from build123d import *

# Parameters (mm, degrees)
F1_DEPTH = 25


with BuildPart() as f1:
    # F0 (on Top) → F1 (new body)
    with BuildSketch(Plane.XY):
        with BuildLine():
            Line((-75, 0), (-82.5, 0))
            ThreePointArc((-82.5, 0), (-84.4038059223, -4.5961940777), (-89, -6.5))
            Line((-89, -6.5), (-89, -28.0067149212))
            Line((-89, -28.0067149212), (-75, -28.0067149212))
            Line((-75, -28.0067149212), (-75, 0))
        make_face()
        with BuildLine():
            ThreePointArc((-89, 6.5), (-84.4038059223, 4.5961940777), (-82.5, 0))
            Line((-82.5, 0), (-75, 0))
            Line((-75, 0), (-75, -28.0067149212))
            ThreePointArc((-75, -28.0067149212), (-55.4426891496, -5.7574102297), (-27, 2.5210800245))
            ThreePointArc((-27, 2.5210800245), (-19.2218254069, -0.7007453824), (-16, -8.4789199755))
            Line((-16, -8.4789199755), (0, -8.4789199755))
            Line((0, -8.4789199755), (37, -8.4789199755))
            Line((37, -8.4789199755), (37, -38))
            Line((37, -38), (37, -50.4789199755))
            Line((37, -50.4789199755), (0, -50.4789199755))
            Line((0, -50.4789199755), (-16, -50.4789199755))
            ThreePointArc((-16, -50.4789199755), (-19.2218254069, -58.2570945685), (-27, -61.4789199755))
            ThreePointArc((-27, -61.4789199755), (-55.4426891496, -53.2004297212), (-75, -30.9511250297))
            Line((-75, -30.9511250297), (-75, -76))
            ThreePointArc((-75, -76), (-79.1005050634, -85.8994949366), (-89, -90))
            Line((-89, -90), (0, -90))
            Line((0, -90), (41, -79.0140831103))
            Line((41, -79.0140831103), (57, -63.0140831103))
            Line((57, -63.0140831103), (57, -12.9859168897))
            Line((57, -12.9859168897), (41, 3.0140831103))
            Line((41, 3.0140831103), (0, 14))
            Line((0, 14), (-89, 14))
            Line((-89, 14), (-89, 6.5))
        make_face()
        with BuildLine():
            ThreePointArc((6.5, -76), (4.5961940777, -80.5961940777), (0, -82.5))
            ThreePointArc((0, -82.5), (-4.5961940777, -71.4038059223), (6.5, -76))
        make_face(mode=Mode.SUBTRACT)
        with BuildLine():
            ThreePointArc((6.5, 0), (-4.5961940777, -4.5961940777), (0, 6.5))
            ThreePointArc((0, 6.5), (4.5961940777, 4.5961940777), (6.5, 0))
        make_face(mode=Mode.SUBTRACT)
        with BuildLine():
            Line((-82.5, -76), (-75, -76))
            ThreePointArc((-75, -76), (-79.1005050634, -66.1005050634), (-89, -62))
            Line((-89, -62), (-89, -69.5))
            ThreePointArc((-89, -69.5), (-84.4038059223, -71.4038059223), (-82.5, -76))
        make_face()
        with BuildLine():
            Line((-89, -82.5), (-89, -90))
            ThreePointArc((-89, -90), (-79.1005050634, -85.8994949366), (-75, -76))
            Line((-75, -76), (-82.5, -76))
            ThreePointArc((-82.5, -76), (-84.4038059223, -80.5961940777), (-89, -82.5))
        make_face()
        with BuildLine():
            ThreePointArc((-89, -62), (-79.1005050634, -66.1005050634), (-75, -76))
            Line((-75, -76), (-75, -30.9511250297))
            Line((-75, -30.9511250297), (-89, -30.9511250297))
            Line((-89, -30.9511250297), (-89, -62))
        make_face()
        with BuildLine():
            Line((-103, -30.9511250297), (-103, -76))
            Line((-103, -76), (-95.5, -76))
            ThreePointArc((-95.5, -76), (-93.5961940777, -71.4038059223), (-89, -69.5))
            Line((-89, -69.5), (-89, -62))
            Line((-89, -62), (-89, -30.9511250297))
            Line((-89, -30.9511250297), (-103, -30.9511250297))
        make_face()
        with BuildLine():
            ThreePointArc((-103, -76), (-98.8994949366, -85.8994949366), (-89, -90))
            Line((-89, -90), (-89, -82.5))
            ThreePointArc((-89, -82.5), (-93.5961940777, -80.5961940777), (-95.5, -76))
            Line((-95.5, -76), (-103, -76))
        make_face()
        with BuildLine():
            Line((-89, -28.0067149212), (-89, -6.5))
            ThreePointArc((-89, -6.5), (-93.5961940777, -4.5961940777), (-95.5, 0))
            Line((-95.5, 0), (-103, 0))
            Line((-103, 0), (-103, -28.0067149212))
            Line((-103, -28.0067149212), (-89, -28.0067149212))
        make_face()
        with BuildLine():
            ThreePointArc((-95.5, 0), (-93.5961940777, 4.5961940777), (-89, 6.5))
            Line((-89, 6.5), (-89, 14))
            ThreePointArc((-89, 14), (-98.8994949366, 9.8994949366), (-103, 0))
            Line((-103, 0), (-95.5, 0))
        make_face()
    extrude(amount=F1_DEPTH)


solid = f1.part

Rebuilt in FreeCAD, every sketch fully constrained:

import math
import FreeCAD as App
import Part
import Sketcher

V = App.Vector
Q = App.Units.Quantity

doc = App.newDocument("Part")
body = doc.addObject("PartDesign::Body", "Body")

# Sketch on XY plane
sketch1 = body.newObject("Sketcher::SketchObject", "Sketch")
sketch1.AttachmentSupport = (doc.getObject("XY_Plane"), [""])
sketch1.MapMode = "FlatFace"
sketch1.addGeometry(Part.LineSegment(V(-103, 0, 0), V(-103, -28.006715, 0)), False)
sketch1.addGeometry(Part.LineSegment(V(-103, -28.006715, 0), V(-75, -28.006715, 0)), False)
sketch1.addGeometry(Part.ArcOfCircle(Part.Circle(V(-27, -50.47892, 0), V(0, 0, 1), 53), math.radians(90), math.radians(154.912372)), False)
sketch1.addGeometry(Part.ArcOfCircle(Part.Circle(V(-27, -8.47892, 0), V(0, 0, 1), 11), math.radians(0), math.radians(90)), False)
sketch1.addGeometry(Part.LineSegment(V(-16, -8.47892, 0), V(37, -8.47892, 0)), False)
sketch1.addGeometry(Part.LineSegment(V(37, -8.47892, 0), V(37, -50.47892, 0)), False)
sketch1.addGeometry(Part.LineSegment(V(37, -50.47892, 0), V(-16, -50.47892, 0)), False)
sketch1.addGeometry(Part.ArcOfCircle(Part.Circle(V(-27, -50.47892, 0), V(0, 0, 1), 11), math.radians(-90), math.radians(0)), False)
sketch1.addGeometry(Part.ArcOfCircle(Part.Circle(V(-27, -8.47892, 0), V(0, 0, 1), 53), math.radians(-154.912372), math.radians(-90)), False)
sketch1.addGeometry(Part.LineSegment(V(-75, -30.951125, 0), V(-103, -30.951125, 0)), False)
sketch1.addGeometry(Part.LineSegment(V(-103, -30.951125, 0), V(-103, -76, 0)), False)
sketch1.addGeometry(Part.ArcOfCircle(Part.Circle(V(-89, -76, 0), V(0, 0, 1), 14), math.radians(180), math.radians(270)), False)
sketch1.addGeometry(Part.LineSegment(V(-89, -90, 0), V(0, -90, 0)), False)
sketch1.addGeometry(Part.LineSegment(V(0, -90, 0), V(41, -79.014083, 0)), False)
sketch1.addGeometry(Part.LineSegment(V(41, -79.014083, 0), V(57, -63.014083, 0)), False)
sketch1.addGeometry(Part.LineSegment(V(57, -63.014083, 0), V(57, -12.985917, 0)), False)
sketch1.addGeometry(Part.LineSegment(V(57, -12.985917, 0), V(41, 3.014083, 0)), False)
sketch1.addGeometry(Part.LineSegment(V(41, 3.014083, 0), V(0, 14, 0)), False)
sketch1.addGeometry(Part.LineSegment(V(0, 14, 0), V(-89, 14, 0)), False)
sketch1.addGeometry(Part.ArcOfCircle(Part.Circle(V(-89, 0, 0), V(0, 0, 1), 14), math.radians(90), math.radians(180)), False)
sketch1.addGeometry(Part.ArcOfCircle(Part.Circle(V(-89, 0, 0), V(0, 0, 1), 6.5), math.radians(-90), math.radians(0)), False)
sketch1.addGeometry(Part.ArcOfCircle(Part.Circle(V(-89, 0, 0), V(0, 0, 1), 6.5), math.radians(180), math.radians(270)), False)
sketch1.addGeometry(Part.ArcOfCircle(Part.Circle(V(-89, 0, 0), V(0, 0, 1), 6.5), math.radians(90), math.radians(180)), False)
sketch1.addGeometry(Part.ArcOfCircle(Part.Circle(V(-89, 0, 0), V(0, 0, 1), 6.5), math.radians(0), math.radians(90)), False)
sketch1.addGeometry(Part.ArcOfCircle(Part.Circle(V(-89, -76, 0), V(0, 0, 1), 6.5), math.radians(90), math.radians(180)), False)
sketch1.addGeometry(Part.ArcOfCircle(Part.Circle(V(-89, -76, 0), V(0, 0, 1), 6.5), math.radians(0), math.radians(90)), False)
sketch1.addGeometry(Part.ArcOfCircle(Part.Circle(V(-89, -76, 0), V(0, 0, 1), 6.5), math.radians(-90), math.radians(0)), False)
sketch1.addGeometry(Part.ArcOfCircle(Part.Circle(V(-89, -76, 0), V(0, 0, 1), 6.5), math.radians(180), math.radians(270)), False)
sketch1.addGeometry(Part.ArcOfCircle(Part.Circle(V(0, -76, 0), V(0, 0, 1), 6.5), math.radians(0), math.radians(270)), False)
sketch1.addGeometry(Part.ArcOfCircle(Part.Circle(V(0, -76, 0), V(0, 0, 1), 6.5), math.radians(-90), math.radians(0)), False)
sketch1.addGeometry(Part.ArcOfCircle(Part.Circle(V(0, 0, 0), V(0, 0, 1), 6.5), math.radians(0), math.radians(90)), False)
sketch1.addGeometry(Part.ArcOfCircle(Part.Circle(V(0, 0, 0), V(0, 0, 1), 6.5), math.radians(90), math.radians(360)), False)
sketch1.addConstraint(Sketcher.Constraint("Coincident", 0, 2, 1, 1))
sketch1.addConstraint(Sketcher.Constraint("Coincident", 1, 2, 2, 2))
sketch1.addConstraint(Sketcher.Constraint("Tangent", 2, 1, 3, 2))
sketch1.addConstraint(Sketcher.Constraint("Coincident", 3, 1, 4, 1))
sketch1.addConstraint(Sketcher.Constraint("Coincident", 4, 2, 5, 1))
sketch1.addConstraint(Sketcher.Constraint("Coincident", 5, 2, 6, 1))
sketch1.addConstraint(Sketcher.Constraint("Coincident", 6, 2, 7, 2))
sketch1.addConstraint(Sketcher.Constraint("Tangent", 7, 1, 8, 2))
sketch1.addConstraint(Sketcher.Constraint("Coincident", 8, 1, 9, 1))
sketch1.addConstraint(Sketcher.Constraint("Coincident", 9, 2, 10, 1))
sketch1.addConstraint(Sketcher.Constraint("Tangent", 10, 2, 11, 1))
sketch1.addConstraint(Sketcher.Constraint("Tangent", 11, 2, 12, 1))
sketch1.addConstraint(Sketcher.Constraint("Coincident", 12, 2, 13, 1))
sketch1.addConstraint(Sketcher.Constraint("Coincident", 13, 2, 14, 1))
sketch1.addConstraint(Sketcher.Constraint("Coincident", 14, 2, 15, 1))
sketch1.addConstraint(Sketcher.Constraint("Coincident", 15, 2, 16, 1))
sketch1.addConstraint(Sketcher.Constraint("Coincident", 16, 2, 17, 1))
sketch1.addConstraint(Sketcher.Constraint("Coincident", 17, 2, 18, 1))
sketch1.addConstraint(Sketcher.Constraint("Tangent", 18, 2, 19, 1))
sketch1.addConstraint(Sketcher.Constraint("Tangent", 19, 2, 0, 1))
sketch1.addConstraint(Sketcher.Constraint("Tangent", 20, 1, 21, 2))
sketch1.addConstraint(Sketcher.Constraint("Tangent", 21, 1, 22, 2))
sketch1.addConstraint(Sketcher.Constraint("Tangent", 22, 1, 23, 2))
sketch1.addConstraint(Sketcher.Constraint("Tangent", 23, 1, 20, 2))
sketch1.addConstraint(Sketcher.Constraint("Tangent", 24, 1, 25, 2))
sketch1.addConstraint(Sketcher.Constraint("Tangent", 25, 1, 26, 2))
sketch1.addConstraint(Sketcher.Constraint("Tangent", 26, 1, 27, 2))
sketch1.addConstraint(Sketcher.Constraint("Tangent", 27, 1, 24, 2))
sketch1.addConstraint(Sketcher.Constraint("Tangent", 28, 1, 29, 2))
sketch1.addConstraint(Sketcher.Constraint("Coincident", 29, 1, 28, 2))
sketch1.addConstraint(Sketcher.Constraint("Tangent", 30, 1, 31, 2))
sketch1.addConstraint(Sketcher.Constraint("Coincident", 31, 1, 30, 2))
sketch1.addConstraint(Sketcher.Constraint("Vertical", 0))
sketch1.addConstraint(Sketcher.Constraint("Horizontal", 1))
sketch1.addConstraint(Sketcher.Constraint("Horizontal", 4))
sketch1.addConstraint(Sketcher.Constraint("Vertical", 5))
sketch1.addConstraint(Sketcher.Constraint("Horizontal", 6))
sketch1.addConstraint(Sketcher.Constraint("Horizontal", 9))
sketch1.addConstraint(Sketcher.Constraint("Vertical", 10))
sketch1.addConstraint(Sketcher.Constraint("Horizontal", 12))
sketch1.addConstraint(Sketcher.Constraint("Vertical", 15))
sketch1.addConstraint(Sketcher.Constraint("Horizontal", 18))
sketch1.addConstraint(Sketcher.Constraint("Coincident", 30, 3, -1, 1))
sketch1.addConstraint(Sketcher.Constraint("Coincident", 7, 3, 2, 3))
sketch1.addConstraint(Sketcher.Constraint("Coincident", 8, 3, 3, 3))
sketch1.addConstraint(Sketcher.Constraint("Coincident", 20, 3, 19, 3))
sketch1.addConstraint(Sketcher.Constraint("Coincident", 24, 3, 11, 3))
sketch1.addConstraint(Sketcher.Constraint("Equal", 3, 7))
sketch1.addConstraint(Sketcher.Constraint("Equal", 11, 19))
sketch1.addConstraint(Sketcher.Constraint("Equal", 20, 21))
sketch1.addConstraint(Sketcher.Constraint("Equal", 23, 24))
sketch1.addConstraint(Sketcher.Constraint("Equal", 24, 25))
sketch1.addConstraint(Sketcher.Constraint("Equal", 27, 28))
sketch1.addConstraint(Sketcher.Constraint("Equal", 29, 30))
sketch1.addConstraint(Sketcher.Constraint("Symmetric", 20, 1, 22, 1, -1))
sketch1.addConstraint(Sketcher.Constraint("PointOnObject", 28, 3, -2))
sketch1.addConstraint(Sketcher.Constraint("PointOnObject", 12, 2, -2))
sketch1.addConstraint(Sketcher.Constraint("PointOnObject", 17, 2, -2))
sketch1.addConstraint(Sketcher.Constraint("PointOnObject", 21, 1, -1))
sketch1.addConstraint(Sketcher.Constraint("PointOnObject", 23, 1, -1))
sketch1.addConstraint(Sketcher.Constraint("PointOnObject", 29, 1, -2))
sketch1.addConstraint(Sketcher.Constraint("PointOnObject", 30, 1, -1))
sketch1.addConstraint(Sketcher.Constraint("PointOnObject", 31, 1, -2))
sketch1.addConstraint(Sketcher.Constraint("Perpendicular", 14, 16))
sketch1.addConstraint(Sketcher.Constraint("Horizontal", 27, 3, 28, 3))
sketch1.addConstraint(Sketcher.Constraint("Horizontal", 8, 3, 3, 1))
sketch1.addConstraint(Sketcher.Constraint("Horizontal", 7, 3, 5, 2))
sketch1.addConstraint(Sketcher.Constraint("Horizontal", 10, 2, 25, 1))
sketch1.addConstraint(Sketcher.Constraint("Horizontal", 25, 1, 27, 1))
sketch1.addConstraint(Sketcher.Constraint("Horizontal", 27, 1, 28, 1))
sketch1.addConstraint(Sketcher.Constraint("Vertical", 2, 3, 3, 3))
sketch1.addConstraint(Sketcher.Constraint("Vertical", 11, 3, 19, 3))
sketch1.addConstraint(Sketcher.Constraint("Vertical", 1, 2, 8, 1))
sketch1.addConstraint(Sketcher.Constraint("Vertical", 13, 2, 16, 2))
sketch1.addConstraint(Sketcher.Constraint("Vertical", 18, 2, 20, 1))
sketch1.addConstraint(Sketcher.Constraint("Vertical", 22, 1, 24, 1))
sketch1.addConstraint(Sketcher.Constraint("Vertical", 24, 1, 26, 1))
sketch1.addConstraint(Sketcher.Constraint("Equal", 14, 16))
sketch1.addConstraint(Sketcher.Constraint("Equal", 13, 17))
sketch1.addConstraint(Sketcher.Constraint("Radius", 2, Q("53 mm")))
sketch1.addConstraint(Sketcher.Constraint("Radius", 3, Q("11 mm")))
sketch1.addConstraint(Sketcher.Constraint("Radius", 11, Q("14 mm")))
sketch1.addConstraint(Sketcher.Constraint("Radius", 20, Q("6.5 mm")))
sketch1.addConstraint(Sketcher.Constraint("DistanceX", 1, 1, 1, 2, Q("28 mm")))
sketch1.addConstraint(Sketcher.Constraint("DistanceX", 4, 1, 4, 2, Q("53 mm")))
sketch1.addConstraint(Sketcher.Constraint("DistanceX", 12, 1, 12, 2, Q("89 mm")))
sketch1.addConstraint(Sketcher.Constraint("Angle", 13, Q("15 deg")))
sketch1.addConstraint(Sketcher.Constraint("DistanceX", 2, 3, -1, 1, Q("27 mm")))
sketch1.addConstraint(Sketcher.Constraint("DistanceY", 11, 3, -1, 1, Q("76 mm")))
sketch1.addConstraint(Sketcher.Constraint("DistanceX", -1, 1, 13, 2, Q("41 mm")))
sketch1.addConstraint(Sketcher.Constraint("DistanceX", -1, 1, 14, 2, Q("57 mm")))
sketch1.addConstraint(Sketcher.Constraint("DistanceY", 0, 2, 0, 1, Q("28.006715 mm")))
pad1 = body.newObject("PartDesign::Pad", "Pad")
pad1.Profile = sketch1
pad1.Length = 25

doc.recompute()
